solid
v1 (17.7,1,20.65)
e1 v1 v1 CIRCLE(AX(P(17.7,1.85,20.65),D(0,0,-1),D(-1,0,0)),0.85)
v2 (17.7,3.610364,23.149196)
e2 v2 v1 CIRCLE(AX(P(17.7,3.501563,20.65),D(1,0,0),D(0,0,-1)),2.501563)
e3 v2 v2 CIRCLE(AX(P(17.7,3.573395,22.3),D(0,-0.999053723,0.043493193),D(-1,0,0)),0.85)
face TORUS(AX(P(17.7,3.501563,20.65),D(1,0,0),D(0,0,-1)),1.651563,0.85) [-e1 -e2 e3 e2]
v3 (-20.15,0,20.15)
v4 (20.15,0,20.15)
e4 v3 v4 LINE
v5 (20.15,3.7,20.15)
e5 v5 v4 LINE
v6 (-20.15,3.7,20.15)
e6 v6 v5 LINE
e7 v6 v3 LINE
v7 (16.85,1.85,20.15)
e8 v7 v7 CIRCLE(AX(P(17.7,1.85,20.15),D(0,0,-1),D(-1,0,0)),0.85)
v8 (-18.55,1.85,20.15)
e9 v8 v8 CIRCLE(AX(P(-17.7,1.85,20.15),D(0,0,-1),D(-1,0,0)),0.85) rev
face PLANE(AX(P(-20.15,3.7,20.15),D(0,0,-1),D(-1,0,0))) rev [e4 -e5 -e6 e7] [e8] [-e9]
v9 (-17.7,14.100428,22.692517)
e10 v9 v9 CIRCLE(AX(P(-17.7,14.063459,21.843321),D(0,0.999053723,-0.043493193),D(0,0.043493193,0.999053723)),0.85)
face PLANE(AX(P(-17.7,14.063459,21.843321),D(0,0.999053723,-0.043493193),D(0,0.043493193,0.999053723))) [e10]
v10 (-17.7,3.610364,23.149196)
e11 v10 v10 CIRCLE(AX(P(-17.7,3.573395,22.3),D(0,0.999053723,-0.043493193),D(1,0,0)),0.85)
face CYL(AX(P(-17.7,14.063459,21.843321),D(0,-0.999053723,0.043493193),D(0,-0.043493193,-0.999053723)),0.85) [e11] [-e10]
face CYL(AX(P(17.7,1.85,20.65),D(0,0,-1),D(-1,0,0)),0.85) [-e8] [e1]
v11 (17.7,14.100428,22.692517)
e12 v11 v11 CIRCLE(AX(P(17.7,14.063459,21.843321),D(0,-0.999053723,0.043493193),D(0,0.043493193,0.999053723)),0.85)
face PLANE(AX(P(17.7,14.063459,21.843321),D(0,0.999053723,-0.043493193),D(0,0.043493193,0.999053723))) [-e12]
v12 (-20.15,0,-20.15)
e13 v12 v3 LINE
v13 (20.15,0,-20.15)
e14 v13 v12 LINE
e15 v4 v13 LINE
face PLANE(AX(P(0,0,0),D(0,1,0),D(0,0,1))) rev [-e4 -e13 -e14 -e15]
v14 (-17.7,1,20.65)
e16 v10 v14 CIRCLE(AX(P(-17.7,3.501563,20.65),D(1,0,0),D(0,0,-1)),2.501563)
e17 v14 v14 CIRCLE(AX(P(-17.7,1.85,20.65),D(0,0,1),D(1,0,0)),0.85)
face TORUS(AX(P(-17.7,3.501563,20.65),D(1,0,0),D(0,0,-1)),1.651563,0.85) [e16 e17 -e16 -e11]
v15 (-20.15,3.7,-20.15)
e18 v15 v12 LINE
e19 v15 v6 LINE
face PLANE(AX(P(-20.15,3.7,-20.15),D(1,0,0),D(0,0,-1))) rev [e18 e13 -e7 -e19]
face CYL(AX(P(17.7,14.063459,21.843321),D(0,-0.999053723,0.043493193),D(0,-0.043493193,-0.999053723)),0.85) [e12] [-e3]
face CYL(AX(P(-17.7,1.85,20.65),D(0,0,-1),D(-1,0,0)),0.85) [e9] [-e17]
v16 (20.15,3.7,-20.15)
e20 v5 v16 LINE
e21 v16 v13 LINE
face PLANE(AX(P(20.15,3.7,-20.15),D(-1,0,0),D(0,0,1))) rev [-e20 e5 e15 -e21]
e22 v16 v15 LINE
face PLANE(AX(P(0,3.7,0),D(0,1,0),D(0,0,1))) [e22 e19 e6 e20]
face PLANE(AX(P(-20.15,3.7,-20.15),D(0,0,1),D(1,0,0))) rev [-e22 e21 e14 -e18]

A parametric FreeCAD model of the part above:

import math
import FreeCAD as App
import Part
import Sketcher

V = App.Vector


def add_polygon(sketch, points):
    """Adds a closed chain of lines whose ends are joined by coincident constraints."""
    first, n = sketch.GeometryCount, len(points)
    for a, b in zip(points, points[1:] + points[:1]):
        sketch.addGeometry(Part.LineSegment(App.Vector(*a, 0), App.Vector(*b, 0)), False)
    for i in range(n):
        sketch.addConstraint(Sketcher.Constraint("Coincident", first + i, 2, first + (i + 1) % n, 1))

doc = App.newDocument("Part")
body = doc.addObject("PartDesign::Body", "Body")

# Sketch on XZ plane
sketch1 = body.newObject("Sketcher::SketchObject", "Sketch")
sketch1.AttachmentSupport = (doc.getObject("XZ_Plane"), [""])
sketch1.MapMode = "FlatFace"
add_polygon(sketch1, [(-20, -20), (-20, 20), (20, 20), (20, -20)])  # lines 0-3
sketch1.addConstraint([
    Sketcher.Constraint("Vertical", 0),
    Sketcher.Constraint("Horizontal", 1),
    Sketcher.Constraint("Vertical", 2),
    Sketcher.Constraint("Horizontal", 3),
    Sketcher.Constraint("Symmetric", 0, 2, 2, 2, -1, 1),
    Sketcher.Constraint("Equal", 3, 0),
    Sketcher.Constraint("DistanceX", 1, 1, 1, 2, 40.3),
])
pad1 = body.newObject("PartDesign::Pad", "Pad")
pad1.Profile = sketch1
pad1.Length = 3.7
pad1.Reversed = True

# Sketch on XY plane
sketch2 = body.newObject("Sketcher::SketchObject", "Sketch001")
sketch2.AttachmentSupport = (doc.getObject("XY_Plane"), [""])
sketch2.MapMode = "FlatFace"
sketch2.AttachmentOffset = App.Placement(V(0, 0, 20.15), App.Rotation())
sketch2.addGeometry(Part.Circle(V(-17.7, 1.9, 0), V(0, 0, 1), 0.8), False)
sketch2.addConstraint([
    Sketcher.Constraint("Diameter", 0, 1.7),
    Sketcher.Constraint("DistanceX", 0, 3, -1, 1, 17.7),
    Sketcher.Constraint("DistanceY", -1, 1, 0, 3, 1.85),
])
pad2 = body.newObject("PartDesign::Pad", "Pad001")
pad2.Profile = sketch2
pad2.Length = 0.5

# Sketch on XY plane
sketch3 = body.newObject("Sketcher::SketchObject", "Sketch002")
sketch3.AttachmentSupport = (doc.getObject("XY_Plane"), [""])
sketch3.MapMode = "FlatFace"
sketch3.AttachmentOffset = App.Placement(V(0, 0, 20.65), App.Rotation())
sketch3.addGeometry(Part.Circle(V(-17.7, 1.9, 0), V(0, 0, 1), 0.8), False)
sketch3.addConstraint([
    Sketcher.Constraint("Diameter", 0, 1.7),
    Sketcher.Constraint("DistanceX", 0, 3, -1, 1, 17.7),
    Sketcher.Constraint("DistanceY", -1, 1, 0, 3, 1.85),
])

# Sketch on YZ plane
sketch4 = body.newObject("Sketcher::SketchObject", "Sketch003")
sketch4.AttachmentSupport = (doc.getObject("YZ_Plane"), [""])
sketch4.MapMode = "FlatFace"
sketch4.AttachmentOffset = App.Placement(V(0, 0, -17.7), App.Rotation())
sketch4.addGeometry(Part.ArcOfCircle(Part.Circle(V(3.5, 20.7, 0), V(0, 0, 1), 1.7), math.radians(88), math.radians(180)), False)
sketch4.addConstraint([
    Sketcher.Constraint("DistanceY", -1, 1, 0, 1, 22.3),
    Sketcher.Constraint("DistanceY", -1, 1, 0, 3, 20.65),
    Sketcher.Constraint("DistanceX", -1, 1, 0, 2, 1.85),
    Sketcher.Constraint("DistanceY", -1, 1, 0, 2, 20.65),
    Sketcher.Constraint("Radius", 0, 1.651563),
])
doc.recompute()

additivepipe = body.newObject("PartDesign::AdditivePipe", "AdditivePipe")
additivepipe.Profile = sketch3
additivepipe.Spine = (sketch4, ["Edge1"])

# Sketch on an angled plane
sketch5 = body.newObject("Sketcher::SketchObject", "Sketch004")
sketch5.Placement = App.Placement(V(0, 2.597655, -0.113087), App.Rotation(V(1, 0, 0), V(0, -0.043493193, -0.999053723), V(0, 0.999053723, -0.043493193), "ZXY"))
sketch5.addGeometry(Part.Circle(V(-17.7, -22.4, 0), V(0, 0, 1), 0.8), False)
sketch5.addConstraint([
    Sketcher.Constraint("Diameter", 0, 1.7),
    Sketcher.Constraint("DistanceX", 0, 3, -1, 1, 17.7),
    Sketcher.Constraint("DistanceY", 0, 3, -1, 1, 22.434316),
])
pad3 = body.newObject("PartDesign::Pad", "Pad002")
pad3.Profile = sketch5
pad3.Length = 10.5
doc.recompute()

mirrored = body.newObject("PartDesign::Mirrored", "Mirrored")
mirrored.Originals = [pad2, additivepipe, pad3]
mirrored.MirrorPlane = (doc.getObject("YZ_Plane"), [""])
body.Tip = mirrored

doc.recompute()
